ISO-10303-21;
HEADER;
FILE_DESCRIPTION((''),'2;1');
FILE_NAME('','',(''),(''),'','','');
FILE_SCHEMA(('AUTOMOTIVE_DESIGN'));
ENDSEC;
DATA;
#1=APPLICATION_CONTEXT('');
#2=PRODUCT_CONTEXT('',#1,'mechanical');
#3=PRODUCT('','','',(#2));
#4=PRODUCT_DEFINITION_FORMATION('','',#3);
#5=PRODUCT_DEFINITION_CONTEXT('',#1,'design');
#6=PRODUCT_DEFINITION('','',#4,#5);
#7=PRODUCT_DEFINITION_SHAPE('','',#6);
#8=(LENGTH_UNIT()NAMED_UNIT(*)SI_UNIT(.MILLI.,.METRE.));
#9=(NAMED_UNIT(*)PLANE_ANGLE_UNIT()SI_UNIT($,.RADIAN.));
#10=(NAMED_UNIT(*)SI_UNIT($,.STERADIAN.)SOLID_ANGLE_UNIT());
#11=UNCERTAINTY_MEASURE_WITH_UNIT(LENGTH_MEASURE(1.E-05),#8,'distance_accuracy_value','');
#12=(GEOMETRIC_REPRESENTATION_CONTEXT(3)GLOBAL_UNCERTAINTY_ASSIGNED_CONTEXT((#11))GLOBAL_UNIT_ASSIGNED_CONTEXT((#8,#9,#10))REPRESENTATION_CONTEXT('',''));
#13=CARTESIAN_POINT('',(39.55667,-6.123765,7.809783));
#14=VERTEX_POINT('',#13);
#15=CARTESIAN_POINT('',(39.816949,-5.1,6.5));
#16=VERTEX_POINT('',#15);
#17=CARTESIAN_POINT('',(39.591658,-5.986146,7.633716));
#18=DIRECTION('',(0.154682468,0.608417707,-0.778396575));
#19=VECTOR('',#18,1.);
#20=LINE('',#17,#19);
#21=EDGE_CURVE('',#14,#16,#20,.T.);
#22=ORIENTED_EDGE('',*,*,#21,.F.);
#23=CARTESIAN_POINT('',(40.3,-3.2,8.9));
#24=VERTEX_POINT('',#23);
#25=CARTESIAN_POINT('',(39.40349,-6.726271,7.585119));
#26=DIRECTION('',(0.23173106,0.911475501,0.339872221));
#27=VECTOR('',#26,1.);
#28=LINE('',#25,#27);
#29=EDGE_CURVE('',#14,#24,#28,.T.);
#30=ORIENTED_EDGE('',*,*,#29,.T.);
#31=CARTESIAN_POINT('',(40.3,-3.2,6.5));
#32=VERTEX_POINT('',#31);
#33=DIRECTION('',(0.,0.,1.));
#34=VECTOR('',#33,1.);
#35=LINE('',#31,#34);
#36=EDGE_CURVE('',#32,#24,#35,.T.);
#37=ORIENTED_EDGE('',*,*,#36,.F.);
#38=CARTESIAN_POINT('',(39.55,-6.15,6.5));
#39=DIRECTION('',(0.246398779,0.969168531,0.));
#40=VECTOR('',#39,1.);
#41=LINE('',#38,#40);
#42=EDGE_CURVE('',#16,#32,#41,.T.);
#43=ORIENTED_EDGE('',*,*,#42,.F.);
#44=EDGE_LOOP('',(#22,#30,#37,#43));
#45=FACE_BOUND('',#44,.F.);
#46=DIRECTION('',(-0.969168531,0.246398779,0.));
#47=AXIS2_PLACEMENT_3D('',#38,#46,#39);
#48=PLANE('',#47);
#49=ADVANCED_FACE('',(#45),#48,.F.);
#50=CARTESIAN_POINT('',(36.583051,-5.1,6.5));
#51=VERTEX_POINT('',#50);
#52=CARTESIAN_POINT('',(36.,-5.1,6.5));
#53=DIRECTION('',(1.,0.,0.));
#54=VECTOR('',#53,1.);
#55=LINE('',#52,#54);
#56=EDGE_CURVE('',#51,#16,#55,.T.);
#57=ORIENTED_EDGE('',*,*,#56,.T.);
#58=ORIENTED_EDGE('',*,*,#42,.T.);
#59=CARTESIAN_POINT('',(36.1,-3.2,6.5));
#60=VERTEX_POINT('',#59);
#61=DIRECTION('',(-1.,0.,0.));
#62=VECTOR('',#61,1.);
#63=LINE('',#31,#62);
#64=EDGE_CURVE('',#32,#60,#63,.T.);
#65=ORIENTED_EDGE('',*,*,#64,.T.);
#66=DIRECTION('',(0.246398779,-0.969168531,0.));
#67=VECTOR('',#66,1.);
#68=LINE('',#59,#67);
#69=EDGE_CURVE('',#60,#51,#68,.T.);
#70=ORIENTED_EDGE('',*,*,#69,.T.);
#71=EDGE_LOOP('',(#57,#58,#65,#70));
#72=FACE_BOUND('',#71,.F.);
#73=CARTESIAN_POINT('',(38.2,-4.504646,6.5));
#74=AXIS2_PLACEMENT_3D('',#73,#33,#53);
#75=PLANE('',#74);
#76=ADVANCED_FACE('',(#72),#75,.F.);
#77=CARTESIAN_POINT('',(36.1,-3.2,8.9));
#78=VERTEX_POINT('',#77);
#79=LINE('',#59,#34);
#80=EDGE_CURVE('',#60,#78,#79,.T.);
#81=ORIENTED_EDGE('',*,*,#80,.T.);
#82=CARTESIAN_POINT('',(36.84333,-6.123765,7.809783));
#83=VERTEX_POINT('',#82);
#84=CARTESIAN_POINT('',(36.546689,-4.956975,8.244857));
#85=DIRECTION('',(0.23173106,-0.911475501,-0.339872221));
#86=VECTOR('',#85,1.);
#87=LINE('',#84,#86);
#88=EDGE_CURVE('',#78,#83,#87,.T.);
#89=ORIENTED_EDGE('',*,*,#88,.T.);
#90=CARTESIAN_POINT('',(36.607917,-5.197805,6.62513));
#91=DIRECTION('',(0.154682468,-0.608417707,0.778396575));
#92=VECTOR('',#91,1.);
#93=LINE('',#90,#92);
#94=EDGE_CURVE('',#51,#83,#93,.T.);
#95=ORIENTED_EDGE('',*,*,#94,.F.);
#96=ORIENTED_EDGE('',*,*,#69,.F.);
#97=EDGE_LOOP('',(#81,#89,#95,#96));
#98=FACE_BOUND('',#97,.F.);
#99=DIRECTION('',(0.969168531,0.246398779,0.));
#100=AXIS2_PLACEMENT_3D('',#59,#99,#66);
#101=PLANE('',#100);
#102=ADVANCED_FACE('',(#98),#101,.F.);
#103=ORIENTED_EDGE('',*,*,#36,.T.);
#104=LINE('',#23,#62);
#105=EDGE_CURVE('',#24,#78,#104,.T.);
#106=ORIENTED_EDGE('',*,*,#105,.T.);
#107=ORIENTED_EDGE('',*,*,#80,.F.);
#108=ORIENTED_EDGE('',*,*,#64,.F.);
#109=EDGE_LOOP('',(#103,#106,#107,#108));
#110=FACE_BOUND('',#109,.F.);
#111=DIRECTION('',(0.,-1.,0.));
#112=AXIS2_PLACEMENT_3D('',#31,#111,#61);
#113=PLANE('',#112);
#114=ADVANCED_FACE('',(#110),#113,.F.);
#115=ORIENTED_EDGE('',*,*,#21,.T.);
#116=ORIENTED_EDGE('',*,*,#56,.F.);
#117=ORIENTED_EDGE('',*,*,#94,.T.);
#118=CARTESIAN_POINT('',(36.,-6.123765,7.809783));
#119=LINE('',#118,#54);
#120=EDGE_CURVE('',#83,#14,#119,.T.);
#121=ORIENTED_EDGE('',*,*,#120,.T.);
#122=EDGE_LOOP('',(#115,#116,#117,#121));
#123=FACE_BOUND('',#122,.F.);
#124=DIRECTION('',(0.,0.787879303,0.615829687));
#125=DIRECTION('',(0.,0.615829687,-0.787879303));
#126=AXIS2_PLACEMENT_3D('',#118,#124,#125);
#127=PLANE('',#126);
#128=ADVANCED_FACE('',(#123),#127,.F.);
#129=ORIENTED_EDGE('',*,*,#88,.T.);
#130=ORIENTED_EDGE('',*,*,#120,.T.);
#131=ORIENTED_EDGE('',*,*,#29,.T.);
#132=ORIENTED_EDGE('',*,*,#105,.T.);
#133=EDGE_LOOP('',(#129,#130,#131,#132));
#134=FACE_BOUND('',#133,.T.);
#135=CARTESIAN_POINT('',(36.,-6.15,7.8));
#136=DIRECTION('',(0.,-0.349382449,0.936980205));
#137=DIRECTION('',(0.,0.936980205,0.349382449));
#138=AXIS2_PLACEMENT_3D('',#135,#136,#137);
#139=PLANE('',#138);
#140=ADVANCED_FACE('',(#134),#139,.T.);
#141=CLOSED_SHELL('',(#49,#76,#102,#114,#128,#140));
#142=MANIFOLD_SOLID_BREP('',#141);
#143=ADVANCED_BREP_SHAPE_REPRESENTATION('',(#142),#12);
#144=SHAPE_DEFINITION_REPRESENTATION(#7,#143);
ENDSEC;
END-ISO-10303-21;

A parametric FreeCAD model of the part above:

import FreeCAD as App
import Part
import Sketcher
from FreeCAD import Vector


def add_polygon(sketch, points):
    """Adds a closed chain of lines whose ends are joined by coincident constraints."""
    first, n = sketch.GeometryCount, len(points)
    for a, b in zip(points, points[1:] + points[:1]):
        sketch.addGeometry(Part.LineSegment(App.Vector(*a, 0), App.Vector(*b, 0)), False)
    for i in range(n):
        sketch.addConstraint(Sketcher.Constraint("Coincident", first + i, 2, first + (i + 1) % n, 1))

doc = App.newDocument("Part")
body = doc.addObject("PartDesign::Body", "Body")

# Sketch on XY plane
sketch1 = body.newObject("Sketcher::SketchObject", "Sketch")
sketch1.AttachmentSupport = (doc.getObject("XY_Plane"), [""])
sketch1.MapMode = "FlatFace"
sketch1.AttachmentOffset = App.Placement(Vector(0, 0, 6.5), App.Rotation())
add_polygon(sketch1, [(36.1, -3.2), (36.9, -6.2), (39.5, -6.2), (40.3, -3.2)])  # lines 0-3
sketch1.addConstraint([
    Sketcher.Constraint("Horizontal", 1),
    Sketcher.Constraint("Horizontal", 3),
    Sketcher.Constraint("Equal", 0, 2),
    Sketcher.Constraint("DistanceX", 1, 1, 1, 2, 2.7),
    Sketcher.Constraint("DistanceX", 3, 2, 3, 1, 4.2),
    Sketcher.Constraint("DistanceX", -1, 1, 2, 2, 40.3),
    Sketcher.Constraint("DistanceY", 2, 2, -1, 1, 3.2),
    Sketcher.Constraint("DistanceY", 0, 2, -1, 1, 6.15),
])
pad1 = body.newObject("PartDesign::Pad", "Pad")
pad1.Profile = sketch1
pad1.Length = 2.4

# Sketch on YZ plane
sketch2 = body.newObject("Sketcher::SketchObject", "Sketch001")
sketch2.AttachmentSupport = (doc.getObject("YZ_Plane"), [""])
sketch2.MapMode = "FlatFace"
sketch2.AttachmentOffset = App.Placement(Vector(0, 0, 36), App.Rotation())
add_polygon(sketch2, [(-3.2, 8.9), (-6.2, 7.8), (-6.2, 8.9)])  # lines 0-2
sketch2.addConstraint([
    Sketcher.Constraint("Vertical", 1),
    Sketcher.Constraint("Horizontal", 2),
    Sketcher.Constraint("DistanceY", 1, 1, 1, 2, 1.1),
    Sketcher.Constraint("DistanceX", 2, 1, 2, 2, 2.95),
    Sketcher.Constraint("DistanceY", -1, 1, 0, 2, 7.8),
    Sketcher.Constraint("DistanceX", 2, 2, -1, 1, 3.2),
])
pocket1 = body.newObject("PartDesign::Pocket", "Pocket")
pocket1.Profile = sketch2
pocket1.Length = 5
pocket1.Reversed = True

# Sketch on YZ plane
sketch3 = body.newObject("Sketcher::SketchObject", "Sketch002")
sketch3.AttachmentSupport = (doc.getObject("YZ_Plane"), [""])
sketch3.MapMode = "FlatFace"
sketch3.AttachmentOffset = App.Placement(Vector(0, 0, 36), App.Rotation())
add_polygon(sketch3, [(-6.124, 7.81), (-5.1, 6.5), (-6.15, 6.5), (-6.15, 7.8)])  # lines 0-3
sketch3.addConstraint([
    Sketcher.Constraint("Horizontal", 1),
    Sketcher.Constraint("Vertical", 2),
    Sketcher.Constraint("DistanceY", 2, 1, 2, 2, 1.3),
    Sketcher.Constraint("DistanceX", 1, 2, 1, 1, 1.05),
    Sketcher.Constraint("DistanceX", 0, 2, -1, 1, 5.1),
    Sketcher.Constraint("DistanceY", -1, 1, 0, 2, 6.5),
    Sketcher.Constraint("Distance", 3, 0.028),
    Sketcher.Constraint("Distance", 0, 1.662416),
])
pocket2 = body.newObject("PartDesign::Pocket", "Pocket001")
pocket2.Profile = sketch3
pocket2.Length = 5
pocket2.Reversed = True

doc.recompute()
